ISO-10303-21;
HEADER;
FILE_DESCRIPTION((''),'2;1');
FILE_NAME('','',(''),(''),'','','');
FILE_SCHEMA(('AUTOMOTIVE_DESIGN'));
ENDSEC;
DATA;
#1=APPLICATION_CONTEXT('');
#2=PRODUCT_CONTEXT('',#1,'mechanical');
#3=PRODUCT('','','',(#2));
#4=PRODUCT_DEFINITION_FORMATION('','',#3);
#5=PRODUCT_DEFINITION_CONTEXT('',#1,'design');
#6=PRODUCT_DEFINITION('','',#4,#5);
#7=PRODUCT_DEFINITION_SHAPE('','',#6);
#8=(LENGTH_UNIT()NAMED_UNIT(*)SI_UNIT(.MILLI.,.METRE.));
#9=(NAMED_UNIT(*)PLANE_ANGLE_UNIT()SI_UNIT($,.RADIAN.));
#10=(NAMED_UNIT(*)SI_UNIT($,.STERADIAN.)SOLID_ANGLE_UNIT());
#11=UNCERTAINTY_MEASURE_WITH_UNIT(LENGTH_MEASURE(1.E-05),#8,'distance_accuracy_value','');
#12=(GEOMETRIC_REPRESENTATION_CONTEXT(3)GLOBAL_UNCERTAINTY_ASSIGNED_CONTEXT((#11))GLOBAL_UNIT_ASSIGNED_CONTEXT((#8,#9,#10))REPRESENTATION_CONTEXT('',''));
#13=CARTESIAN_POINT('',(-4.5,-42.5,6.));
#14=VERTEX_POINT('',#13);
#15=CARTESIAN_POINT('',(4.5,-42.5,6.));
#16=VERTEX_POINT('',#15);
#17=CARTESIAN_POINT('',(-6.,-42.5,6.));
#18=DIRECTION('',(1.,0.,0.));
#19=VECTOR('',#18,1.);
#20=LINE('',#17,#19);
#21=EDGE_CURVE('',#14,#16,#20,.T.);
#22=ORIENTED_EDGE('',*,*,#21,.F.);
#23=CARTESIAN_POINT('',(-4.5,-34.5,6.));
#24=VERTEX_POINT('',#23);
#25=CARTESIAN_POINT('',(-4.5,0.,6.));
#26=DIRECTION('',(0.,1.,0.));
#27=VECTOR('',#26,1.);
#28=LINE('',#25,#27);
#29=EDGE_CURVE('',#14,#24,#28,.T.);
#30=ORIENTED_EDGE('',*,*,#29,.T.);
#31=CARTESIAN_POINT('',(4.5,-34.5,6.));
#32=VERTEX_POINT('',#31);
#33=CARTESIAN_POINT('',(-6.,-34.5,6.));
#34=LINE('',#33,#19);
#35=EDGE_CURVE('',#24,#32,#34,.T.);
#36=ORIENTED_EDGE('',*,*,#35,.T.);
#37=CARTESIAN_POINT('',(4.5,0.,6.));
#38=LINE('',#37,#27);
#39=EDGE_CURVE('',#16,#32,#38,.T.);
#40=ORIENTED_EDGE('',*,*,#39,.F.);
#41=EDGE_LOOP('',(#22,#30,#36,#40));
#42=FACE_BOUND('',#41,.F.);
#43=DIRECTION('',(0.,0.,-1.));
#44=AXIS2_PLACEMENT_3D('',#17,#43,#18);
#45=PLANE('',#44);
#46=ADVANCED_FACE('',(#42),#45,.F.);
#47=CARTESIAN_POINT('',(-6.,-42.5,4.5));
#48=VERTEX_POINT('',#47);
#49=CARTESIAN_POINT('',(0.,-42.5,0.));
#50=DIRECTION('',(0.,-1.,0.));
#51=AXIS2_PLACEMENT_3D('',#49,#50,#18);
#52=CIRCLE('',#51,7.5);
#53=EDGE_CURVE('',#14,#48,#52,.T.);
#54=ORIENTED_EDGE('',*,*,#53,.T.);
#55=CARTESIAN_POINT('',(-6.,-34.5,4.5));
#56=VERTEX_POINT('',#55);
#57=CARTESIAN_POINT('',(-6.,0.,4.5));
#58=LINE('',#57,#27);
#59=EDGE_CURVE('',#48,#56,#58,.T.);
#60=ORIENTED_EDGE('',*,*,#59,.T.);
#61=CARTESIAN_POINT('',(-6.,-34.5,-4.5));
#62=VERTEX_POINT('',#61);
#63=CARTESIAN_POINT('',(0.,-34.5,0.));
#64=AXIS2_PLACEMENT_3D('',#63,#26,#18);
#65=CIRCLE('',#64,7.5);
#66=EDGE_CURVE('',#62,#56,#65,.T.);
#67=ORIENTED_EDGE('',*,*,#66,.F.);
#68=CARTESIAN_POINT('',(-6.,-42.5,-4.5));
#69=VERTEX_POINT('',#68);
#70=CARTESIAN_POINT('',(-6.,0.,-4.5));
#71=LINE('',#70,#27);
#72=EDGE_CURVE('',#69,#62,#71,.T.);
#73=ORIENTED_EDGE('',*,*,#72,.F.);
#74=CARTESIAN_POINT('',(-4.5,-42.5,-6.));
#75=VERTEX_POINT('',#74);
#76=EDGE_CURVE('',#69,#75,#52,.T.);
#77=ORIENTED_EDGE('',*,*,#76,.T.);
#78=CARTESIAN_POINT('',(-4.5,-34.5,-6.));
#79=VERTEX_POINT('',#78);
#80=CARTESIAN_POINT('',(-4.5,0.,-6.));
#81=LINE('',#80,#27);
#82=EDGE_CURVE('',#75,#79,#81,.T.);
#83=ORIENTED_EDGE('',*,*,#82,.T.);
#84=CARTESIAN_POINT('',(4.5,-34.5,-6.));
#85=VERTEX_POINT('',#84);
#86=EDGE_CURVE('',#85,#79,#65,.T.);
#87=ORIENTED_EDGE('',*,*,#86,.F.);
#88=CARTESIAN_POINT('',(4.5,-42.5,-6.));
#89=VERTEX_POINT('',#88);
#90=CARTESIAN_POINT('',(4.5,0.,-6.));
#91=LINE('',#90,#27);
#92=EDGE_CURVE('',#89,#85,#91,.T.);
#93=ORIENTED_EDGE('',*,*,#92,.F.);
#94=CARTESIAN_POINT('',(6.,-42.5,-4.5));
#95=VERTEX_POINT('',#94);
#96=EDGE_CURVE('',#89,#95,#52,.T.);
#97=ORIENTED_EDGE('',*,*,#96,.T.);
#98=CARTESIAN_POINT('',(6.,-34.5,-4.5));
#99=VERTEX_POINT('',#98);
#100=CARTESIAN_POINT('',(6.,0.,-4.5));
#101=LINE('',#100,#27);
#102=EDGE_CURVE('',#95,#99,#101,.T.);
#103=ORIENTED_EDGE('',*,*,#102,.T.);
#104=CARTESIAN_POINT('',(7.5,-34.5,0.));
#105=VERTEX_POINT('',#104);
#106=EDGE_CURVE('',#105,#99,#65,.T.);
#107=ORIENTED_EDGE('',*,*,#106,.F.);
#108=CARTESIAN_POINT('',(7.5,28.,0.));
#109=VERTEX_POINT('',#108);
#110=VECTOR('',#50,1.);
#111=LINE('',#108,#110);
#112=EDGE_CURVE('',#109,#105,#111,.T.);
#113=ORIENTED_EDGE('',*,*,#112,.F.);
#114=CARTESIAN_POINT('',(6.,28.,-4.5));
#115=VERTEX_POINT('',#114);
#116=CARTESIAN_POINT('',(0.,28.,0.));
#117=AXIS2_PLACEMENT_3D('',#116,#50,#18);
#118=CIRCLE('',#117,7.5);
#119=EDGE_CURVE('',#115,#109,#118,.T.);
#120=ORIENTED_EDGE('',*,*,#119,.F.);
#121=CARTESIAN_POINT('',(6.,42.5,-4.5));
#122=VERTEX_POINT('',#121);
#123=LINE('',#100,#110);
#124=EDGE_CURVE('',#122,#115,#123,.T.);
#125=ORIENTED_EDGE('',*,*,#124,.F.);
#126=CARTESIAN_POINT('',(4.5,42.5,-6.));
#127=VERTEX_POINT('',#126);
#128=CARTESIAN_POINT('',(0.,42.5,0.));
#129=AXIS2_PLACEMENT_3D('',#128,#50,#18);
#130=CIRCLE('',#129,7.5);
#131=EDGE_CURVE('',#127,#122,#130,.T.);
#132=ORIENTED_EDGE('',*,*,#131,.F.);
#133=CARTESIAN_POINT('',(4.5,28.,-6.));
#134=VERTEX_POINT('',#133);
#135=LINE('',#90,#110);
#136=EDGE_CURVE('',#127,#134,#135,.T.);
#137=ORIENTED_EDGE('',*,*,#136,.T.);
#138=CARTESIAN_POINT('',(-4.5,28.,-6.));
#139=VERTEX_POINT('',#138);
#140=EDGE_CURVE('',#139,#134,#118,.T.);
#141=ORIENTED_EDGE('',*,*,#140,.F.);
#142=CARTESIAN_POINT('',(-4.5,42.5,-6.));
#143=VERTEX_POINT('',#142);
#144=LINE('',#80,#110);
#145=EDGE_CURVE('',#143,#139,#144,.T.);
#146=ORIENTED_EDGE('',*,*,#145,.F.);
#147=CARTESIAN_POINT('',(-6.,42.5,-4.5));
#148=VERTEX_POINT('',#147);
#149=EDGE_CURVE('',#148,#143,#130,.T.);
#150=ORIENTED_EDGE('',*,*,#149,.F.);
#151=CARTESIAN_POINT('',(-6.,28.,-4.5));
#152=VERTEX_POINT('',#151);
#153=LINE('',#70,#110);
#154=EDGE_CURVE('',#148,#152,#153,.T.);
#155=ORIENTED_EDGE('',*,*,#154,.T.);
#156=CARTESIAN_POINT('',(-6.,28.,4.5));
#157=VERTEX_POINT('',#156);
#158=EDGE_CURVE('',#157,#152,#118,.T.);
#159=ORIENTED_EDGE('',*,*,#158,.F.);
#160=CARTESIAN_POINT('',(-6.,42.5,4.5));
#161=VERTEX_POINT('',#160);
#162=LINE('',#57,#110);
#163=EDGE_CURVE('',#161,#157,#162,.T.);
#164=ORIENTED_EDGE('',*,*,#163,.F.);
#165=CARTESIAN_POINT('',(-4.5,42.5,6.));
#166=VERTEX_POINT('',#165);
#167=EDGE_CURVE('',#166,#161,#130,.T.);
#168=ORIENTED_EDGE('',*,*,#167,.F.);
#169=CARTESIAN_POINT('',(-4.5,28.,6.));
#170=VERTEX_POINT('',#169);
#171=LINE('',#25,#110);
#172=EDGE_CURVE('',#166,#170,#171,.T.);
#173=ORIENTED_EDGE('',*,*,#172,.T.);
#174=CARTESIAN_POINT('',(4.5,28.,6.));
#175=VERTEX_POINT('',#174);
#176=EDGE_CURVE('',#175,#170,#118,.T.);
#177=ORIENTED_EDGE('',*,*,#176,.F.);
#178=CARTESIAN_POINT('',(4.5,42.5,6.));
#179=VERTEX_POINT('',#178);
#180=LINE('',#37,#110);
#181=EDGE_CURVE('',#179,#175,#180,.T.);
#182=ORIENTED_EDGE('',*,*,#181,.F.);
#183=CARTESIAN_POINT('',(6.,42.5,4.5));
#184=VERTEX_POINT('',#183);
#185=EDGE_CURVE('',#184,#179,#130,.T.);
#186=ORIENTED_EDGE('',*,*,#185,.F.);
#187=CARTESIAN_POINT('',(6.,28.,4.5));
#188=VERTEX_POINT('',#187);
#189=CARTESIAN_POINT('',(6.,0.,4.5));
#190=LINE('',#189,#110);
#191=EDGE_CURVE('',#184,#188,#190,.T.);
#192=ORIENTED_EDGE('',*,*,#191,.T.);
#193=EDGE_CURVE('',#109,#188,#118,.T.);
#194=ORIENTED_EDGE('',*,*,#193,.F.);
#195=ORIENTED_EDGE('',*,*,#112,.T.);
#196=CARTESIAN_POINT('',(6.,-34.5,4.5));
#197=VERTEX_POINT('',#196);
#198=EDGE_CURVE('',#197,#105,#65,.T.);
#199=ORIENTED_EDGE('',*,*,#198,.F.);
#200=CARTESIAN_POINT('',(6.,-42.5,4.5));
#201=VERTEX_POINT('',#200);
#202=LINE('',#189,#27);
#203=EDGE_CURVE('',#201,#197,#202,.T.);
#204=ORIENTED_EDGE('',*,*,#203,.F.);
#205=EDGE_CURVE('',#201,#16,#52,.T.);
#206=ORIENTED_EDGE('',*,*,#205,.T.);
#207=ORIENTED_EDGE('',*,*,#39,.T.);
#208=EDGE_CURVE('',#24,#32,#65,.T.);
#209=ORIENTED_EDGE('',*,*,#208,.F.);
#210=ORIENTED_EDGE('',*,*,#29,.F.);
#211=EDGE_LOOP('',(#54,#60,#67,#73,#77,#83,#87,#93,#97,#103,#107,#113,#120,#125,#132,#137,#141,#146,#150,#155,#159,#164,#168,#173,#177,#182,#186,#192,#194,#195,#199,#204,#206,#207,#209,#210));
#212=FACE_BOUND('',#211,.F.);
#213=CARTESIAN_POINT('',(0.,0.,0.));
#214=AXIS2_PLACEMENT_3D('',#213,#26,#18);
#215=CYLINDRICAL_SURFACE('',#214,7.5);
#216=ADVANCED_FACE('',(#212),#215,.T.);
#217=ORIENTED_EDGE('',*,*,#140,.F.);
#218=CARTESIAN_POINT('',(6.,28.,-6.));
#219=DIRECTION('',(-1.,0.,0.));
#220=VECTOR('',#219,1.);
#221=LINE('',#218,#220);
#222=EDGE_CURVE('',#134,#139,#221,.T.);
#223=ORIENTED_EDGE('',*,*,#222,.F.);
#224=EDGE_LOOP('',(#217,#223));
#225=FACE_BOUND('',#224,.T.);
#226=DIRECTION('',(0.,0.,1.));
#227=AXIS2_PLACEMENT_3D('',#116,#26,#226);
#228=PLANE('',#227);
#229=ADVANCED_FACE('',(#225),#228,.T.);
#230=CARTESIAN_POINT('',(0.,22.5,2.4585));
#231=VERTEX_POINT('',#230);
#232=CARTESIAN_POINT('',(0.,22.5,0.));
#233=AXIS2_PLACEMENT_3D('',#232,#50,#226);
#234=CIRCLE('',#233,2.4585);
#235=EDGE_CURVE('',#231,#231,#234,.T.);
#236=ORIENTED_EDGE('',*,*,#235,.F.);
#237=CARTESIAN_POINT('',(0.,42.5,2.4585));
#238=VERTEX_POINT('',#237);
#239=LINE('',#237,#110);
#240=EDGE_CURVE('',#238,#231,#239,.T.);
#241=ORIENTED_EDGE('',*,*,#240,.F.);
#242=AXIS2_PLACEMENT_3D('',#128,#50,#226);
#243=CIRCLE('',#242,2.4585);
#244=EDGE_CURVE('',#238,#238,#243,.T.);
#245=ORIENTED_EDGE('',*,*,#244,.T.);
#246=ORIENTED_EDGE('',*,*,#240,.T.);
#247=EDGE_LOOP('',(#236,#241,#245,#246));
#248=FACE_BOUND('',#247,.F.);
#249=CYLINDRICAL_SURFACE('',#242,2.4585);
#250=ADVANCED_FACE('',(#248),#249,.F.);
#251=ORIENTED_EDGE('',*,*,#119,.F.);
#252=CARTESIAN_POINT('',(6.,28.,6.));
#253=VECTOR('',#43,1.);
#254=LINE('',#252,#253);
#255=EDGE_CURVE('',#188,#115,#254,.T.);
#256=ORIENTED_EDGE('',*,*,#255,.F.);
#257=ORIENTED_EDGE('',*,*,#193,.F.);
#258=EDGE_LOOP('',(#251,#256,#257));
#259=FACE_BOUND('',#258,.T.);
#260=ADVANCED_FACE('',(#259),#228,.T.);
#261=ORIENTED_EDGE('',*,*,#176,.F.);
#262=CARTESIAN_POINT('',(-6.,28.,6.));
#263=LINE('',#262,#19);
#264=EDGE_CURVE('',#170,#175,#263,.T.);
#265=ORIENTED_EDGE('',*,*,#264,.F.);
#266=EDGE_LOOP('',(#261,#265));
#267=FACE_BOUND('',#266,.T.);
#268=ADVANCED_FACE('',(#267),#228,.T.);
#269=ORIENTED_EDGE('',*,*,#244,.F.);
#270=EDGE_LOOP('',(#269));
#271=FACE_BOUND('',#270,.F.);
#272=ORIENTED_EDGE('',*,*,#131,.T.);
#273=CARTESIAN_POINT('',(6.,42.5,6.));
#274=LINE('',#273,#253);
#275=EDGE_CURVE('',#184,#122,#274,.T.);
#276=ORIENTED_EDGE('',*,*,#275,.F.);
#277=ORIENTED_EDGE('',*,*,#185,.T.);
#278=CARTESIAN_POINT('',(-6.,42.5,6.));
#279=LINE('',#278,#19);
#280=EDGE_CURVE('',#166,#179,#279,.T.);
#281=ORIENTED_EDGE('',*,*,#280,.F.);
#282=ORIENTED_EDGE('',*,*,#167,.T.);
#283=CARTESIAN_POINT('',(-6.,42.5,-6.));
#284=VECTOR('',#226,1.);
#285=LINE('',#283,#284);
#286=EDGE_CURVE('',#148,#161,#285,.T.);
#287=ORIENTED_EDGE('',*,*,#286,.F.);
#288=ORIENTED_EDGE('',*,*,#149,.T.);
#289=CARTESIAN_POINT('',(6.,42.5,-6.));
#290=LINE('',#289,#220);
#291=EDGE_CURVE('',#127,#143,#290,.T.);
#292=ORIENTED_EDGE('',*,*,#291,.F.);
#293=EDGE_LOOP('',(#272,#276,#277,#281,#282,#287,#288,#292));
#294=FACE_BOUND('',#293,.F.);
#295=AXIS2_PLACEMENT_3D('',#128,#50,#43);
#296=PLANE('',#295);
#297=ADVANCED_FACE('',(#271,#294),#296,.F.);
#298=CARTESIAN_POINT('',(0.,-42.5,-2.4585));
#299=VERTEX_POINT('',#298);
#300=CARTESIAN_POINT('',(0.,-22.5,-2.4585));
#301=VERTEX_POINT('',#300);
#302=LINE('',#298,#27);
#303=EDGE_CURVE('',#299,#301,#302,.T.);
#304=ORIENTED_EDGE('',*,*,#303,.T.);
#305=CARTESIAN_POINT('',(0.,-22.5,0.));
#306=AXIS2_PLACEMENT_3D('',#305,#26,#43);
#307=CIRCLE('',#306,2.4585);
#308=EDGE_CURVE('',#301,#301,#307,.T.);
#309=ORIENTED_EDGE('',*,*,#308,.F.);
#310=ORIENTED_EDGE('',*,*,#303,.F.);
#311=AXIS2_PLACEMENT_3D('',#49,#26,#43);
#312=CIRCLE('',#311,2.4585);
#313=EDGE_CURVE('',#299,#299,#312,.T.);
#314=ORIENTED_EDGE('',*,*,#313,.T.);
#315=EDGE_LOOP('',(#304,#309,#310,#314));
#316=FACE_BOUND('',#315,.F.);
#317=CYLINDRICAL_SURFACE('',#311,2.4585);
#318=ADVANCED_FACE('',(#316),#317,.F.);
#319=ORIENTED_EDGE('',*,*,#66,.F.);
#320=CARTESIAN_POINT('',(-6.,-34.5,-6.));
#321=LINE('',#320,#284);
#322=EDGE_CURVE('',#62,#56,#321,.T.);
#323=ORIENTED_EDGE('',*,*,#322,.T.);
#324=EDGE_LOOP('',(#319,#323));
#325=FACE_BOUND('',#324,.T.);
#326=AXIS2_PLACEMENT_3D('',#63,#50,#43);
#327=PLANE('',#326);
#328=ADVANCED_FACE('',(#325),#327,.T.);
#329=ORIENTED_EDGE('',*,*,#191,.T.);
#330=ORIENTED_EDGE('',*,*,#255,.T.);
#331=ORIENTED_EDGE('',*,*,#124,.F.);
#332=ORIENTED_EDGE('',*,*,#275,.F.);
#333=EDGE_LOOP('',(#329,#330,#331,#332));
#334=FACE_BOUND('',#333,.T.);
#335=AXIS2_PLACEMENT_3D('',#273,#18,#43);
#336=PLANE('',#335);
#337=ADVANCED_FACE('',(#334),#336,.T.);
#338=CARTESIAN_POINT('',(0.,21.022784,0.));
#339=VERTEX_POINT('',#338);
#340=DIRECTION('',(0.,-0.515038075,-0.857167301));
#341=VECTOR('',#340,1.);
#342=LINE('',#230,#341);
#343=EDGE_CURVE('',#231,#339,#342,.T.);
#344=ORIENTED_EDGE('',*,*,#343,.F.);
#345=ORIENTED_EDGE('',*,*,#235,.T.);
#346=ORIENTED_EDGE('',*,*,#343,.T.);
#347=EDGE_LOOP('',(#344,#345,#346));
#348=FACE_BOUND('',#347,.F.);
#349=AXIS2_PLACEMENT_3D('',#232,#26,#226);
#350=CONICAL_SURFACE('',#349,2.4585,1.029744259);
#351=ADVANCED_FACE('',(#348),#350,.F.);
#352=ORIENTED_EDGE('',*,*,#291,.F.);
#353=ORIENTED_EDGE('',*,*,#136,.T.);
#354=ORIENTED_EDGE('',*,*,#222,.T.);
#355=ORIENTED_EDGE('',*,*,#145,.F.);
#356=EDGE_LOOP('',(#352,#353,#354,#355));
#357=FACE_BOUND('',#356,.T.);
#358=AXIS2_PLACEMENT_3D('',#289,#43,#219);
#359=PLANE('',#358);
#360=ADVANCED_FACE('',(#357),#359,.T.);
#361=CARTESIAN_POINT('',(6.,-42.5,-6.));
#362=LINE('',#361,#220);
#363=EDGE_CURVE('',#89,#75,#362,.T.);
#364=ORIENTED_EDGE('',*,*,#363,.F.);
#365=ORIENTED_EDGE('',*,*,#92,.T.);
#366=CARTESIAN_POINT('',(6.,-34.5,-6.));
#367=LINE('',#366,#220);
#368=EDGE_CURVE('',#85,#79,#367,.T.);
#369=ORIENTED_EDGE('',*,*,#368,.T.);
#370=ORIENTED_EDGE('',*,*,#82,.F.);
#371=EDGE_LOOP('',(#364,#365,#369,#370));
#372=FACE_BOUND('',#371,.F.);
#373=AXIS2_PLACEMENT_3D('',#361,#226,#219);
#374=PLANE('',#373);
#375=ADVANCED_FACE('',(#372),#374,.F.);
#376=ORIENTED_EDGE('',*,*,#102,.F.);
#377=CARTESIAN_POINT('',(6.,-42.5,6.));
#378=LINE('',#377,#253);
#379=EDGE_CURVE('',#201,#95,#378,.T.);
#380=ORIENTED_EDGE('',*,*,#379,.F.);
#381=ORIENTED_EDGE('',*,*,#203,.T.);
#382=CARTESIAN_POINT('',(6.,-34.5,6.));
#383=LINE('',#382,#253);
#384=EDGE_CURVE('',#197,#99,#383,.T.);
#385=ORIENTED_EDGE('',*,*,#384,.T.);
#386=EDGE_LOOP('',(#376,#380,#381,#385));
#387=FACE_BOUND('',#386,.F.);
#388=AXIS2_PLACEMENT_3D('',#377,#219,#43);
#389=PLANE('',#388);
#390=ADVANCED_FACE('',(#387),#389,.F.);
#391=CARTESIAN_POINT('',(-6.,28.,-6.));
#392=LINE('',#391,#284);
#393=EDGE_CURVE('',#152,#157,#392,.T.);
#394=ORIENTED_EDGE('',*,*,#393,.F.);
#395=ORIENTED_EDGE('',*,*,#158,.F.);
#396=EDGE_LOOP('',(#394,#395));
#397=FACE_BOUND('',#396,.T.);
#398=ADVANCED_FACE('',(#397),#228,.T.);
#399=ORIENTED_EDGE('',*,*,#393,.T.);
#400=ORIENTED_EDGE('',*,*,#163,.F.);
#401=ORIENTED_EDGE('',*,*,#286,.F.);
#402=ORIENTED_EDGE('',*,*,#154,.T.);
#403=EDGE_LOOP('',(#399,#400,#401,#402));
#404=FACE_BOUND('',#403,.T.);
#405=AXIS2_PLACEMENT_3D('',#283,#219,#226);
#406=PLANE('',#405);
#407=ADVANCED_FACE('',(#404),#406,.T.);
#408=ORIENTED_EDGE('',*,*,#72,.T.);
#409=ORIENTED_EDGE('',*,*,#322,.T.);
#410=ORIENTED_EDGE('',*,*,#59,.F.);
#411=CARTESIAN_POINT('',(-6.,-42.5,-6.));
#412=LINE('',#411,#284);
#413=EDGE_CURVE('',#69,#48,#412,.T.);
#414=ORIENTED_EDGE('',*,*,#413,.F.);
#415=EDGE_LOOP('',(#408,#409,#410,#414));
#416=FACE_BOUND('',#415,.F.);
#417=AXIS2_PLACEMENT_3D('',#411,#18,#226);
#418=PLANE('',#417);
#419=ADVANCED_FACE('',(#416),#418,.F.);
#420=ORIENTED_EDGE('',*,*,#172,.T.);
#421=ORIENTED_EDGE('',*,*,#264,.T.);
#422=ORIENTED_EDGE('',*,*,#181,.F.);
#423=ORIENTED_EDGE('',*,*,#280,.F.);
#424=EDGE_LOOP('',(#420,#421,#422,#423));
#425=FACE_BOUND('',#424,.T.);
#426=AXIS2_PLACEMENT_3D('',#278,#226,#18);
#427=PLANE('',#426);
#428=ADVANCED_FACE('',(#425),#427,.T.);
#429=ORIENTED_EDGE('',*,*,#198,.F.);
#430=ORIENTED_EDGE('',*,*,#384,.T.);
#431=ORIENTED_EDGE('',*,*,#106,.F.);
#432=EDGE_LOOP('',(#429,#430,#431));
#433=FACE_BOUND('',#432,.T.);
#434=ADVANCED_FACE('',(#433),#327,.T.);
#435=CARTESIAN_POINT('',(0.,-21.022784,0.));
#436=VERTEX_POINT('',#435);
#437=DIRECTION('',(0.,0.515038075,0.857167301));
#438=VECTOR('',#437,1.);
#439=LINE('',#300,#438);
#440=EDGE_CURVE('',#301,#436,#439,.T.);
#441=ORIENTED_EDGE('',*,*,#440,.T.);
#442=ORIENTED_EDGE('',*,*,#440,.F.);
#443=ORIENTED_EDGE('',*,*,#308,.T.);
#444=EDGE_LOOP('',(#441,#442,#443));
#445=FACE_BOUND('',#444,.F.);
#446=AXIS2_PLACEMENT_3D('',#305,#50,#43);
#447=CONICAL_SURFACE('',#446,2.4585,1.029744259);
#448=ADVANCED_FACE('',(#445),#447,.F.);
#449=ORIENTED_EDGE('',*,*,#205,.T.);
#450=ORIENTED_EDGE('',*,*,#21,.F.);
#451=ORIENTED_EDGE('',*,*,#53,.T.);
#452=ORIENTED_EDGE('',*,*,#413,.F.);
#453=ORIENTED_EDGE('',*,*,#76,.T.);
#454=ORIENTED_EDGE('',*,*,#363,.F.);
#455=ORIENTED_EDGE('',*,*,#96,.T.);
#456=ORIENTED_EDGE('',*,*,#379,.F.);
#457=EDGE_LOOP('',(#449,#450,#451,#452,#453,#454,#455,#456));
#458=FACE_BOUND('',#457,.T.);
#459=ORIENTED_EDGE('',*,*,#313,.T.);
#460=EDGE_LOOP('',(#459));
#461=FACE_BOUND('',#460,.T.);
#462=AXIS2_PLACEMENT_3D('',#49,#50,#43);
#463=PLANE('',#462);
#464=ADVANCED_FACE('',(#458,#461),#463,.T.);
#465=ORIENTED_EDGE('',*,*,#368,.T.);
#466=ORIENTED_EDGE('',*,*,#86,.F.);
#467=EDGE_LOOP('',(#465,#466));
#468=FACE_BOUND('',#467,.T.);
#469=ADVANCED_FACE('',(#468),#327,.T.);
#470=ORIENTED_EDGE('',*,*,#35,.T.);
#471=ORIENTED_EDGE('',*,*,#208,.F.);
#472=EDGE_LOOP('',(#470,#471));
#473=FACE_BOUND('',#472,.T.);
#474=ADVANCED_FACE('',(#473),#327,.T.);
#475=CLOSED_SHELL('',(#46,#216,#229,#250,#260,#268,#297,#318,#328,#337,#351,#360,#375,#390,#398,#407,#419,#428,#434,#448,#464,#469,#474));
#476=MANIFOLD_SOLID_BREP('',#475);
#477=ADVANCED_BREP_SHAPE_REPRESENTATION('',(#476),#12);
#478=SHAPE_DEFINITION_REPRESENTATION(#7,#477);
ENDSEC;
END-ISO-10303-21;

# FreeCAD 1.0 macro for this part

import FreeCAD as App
import Part
import Sketcher

V = App.Vector


def add_polygon(sketch, points):
    """Adds a closed chain of lines whose ends are joined by coincident constraints."""
    first, n = sketch.GeometryCount, len(points)
    for a, b in zip(points, points[1:] + points[:1]):
        sketch.addGeometry(Part.LineSegment(App.Vector(*a, 0), App.Vector(*b, 0)), False)
    for i in range(n):
        sketch.addConstraint(Sketcher.Constraint("Coincident", first + i, 2, first + (i + 1) % n, 1))

doc = App.newDocument("Part")
body = doc.addObject("PartDesign::Body", "Body")

# Sketch on XZ plane
sketch1 = body.newObject("Sketcher::SketchObject", "Sketch")
sketch1.AttachmentSupport = (doc.getObject("XZ_Plane"), [""])
sketch1.MapMode = "FlatFace"
sketch1.addGeometry(Part.Circle(V(0, 0, 0), V(0, 0, 1), 8), False)
sketch1.addConstraint(Sketcher.Constraint("Coincident", 0, 3, -1, 1))
sketch1.addConstraint(Sketcher.Constraint("Diameter", 0, 15.0))
pad1 = body.newObject("PartDesign::Pad", "Pad")
pad1.Profile = sketch1
pad1.Length = 85
pad1.Midplane = True

# Sketch on XZ plane
sketch2 = body.newObject("Sketcher::SketchObject", "Sketch001")
sketch2.AttachmentSupport = (doc.getObject("XZ_Plane"), [""])
sketch2.MapMode = "FlatFace"
sketch2.AttachmentOffset = App.Placement(V(0, 0, -42.5), App.Rotation())
sketch2.addGeometry(Part.Circle(V(0, 0, 0), V(0, 0, 1), 13), False)  # 0
add_polygon(sketch2, [(-6, -6), (6, -6), (6, 6), (-6, 6)])  # lines 1-4
sketch2.addConstraint(Sketcher.Constraint("Horizontal", 1))
sketch2.addConstraint(Sketcher.Constraint("Vertical", 2))
sketch2.addConstraint(Sketcher.Constraint("Horizontal", 3))
sketch2.addConstraint(Sketcher.Constraint("Vertical", 4))
sketch2.addConstraint(Sketcher.Constraint("Coincident", 0, 3, -1, 1))
sketch2.addConstraint(Sketcher.Constraint("Symmetric", 1, 2, 3, 2, -1, 1))
sketch2.addConstraint(Sketcher.Constraint("Equal", 3, 2))
sketch2.addConstraint(Sketcher.Constraint("DistanceX", -1, 1, 1, 2, 6.0))
sketch2.addConstraint(Sketcher.Constraint("Diameter", 0, 26.0266))
pocket1 = body.newObject("PartDesign::Pocket", "Pocket")
pocket1.Profile = sketch2
pocket1.Length = 14.5
pocket1.Reversed = True

# Sketch on XZ plane
sketch3 = body.newObject("Sketcher::SketchObject", "Sketch002")
sketch3.AttachmentSupport = (doc.getObject("XZ_Plane"), [""])
sketch3.MapMode = "FlatFace"
sketch3.AttachmentOffset = App.Placement(V(0, 0, 42.5), App.Rotation())
sketch3.addGeometry(Part.Circle(V(0, 0, 0), V(0, 0, 1), 12), False)  # 0
add_polygon(sketch3, [(-6, -6), (-6, 6), (6, 6), (6, -6)])  # lines 1-4
sketch3.addConstraint(Sketcher.Constraint("Vertical", 1))
sketch3.addConstraint(Sketcher.Constraint("Horizontal", 2))
sketch3.addConstraint(Sketcher.Constraint("Vertical", 3))
sketch3.addConstraint(Sketcher.Constraint("Horizontal", 4))
sketch3.addConstraint(Sketcher.Constraint("Coincident", 0, 3, -1, 1))
sketch3.addConstraint(Sketcher.Constraint("Symmetric", 1, 2, 3, 2, -1, 1))
sketch3.addConstraint(Sketcher.Constraint("Equal", 4, 1))
sketch3.addConstraint(Sketcher.Constraint("DistanceX", 1, 2, -1, 1, 6.0))
sketch3.addConstraint(Sketcher.Constraint("Diameter", 0, 23.6774))
pocket2 = body.newObject("PartDesign::Pocket", "Pocket001")
pocket2.Profile = sketch3
pocket2.Length = 8

# Sketch on XZ plane
sketch4 = body.newObject("Sketcher::SketchObject", "Sketch003")
sketch4.AttachmentSupport = (doc.getObject("XZ_Plane"), [""])
sketch4.MapMode = "FlatFace"
sketch4.AttachmentOffset = App.Placement(V(0, 0, -42.5), App.Rotation())
sketch4.addGeometry(Part.Circle(V(0, 0, 0), V(0, 0, 1), 2.5), False)
sketch4.addConstraint(Sketcher.Constraint("Coincident", 0, 3, -1, 1))
sketch4.addConstraint(Sketcher.Constraint("Diameter", 0, 4.917))
doc.recompute()
hole = body.newObject("PartDesign::Hole", "Hole")
hole.Profile = sketch4
hole.ThreadType = "None"
hole.Diameter = 4.917
hole.DepthType = "Dimension"
hole.Depth = 20
hole.DrillPoint = "Angled"
hole.DrillPointAngle = 118
hole.Reversed = True

# Sketch on XZ plane
sketch5 = body.newObject("Sketcher::SketchObject", "Sketch004")
sketch5.AttachmentSupport = (doc.getObject("XZ_Plane"), [""])
sketch5.MapMode = "FlatFace"
sketch5.AttachmentOffset = App.Placement(V(0, 0, 42.5), App.Rotation())
sketch5.addGeometry(Part.Circle(V(0, 0, 0), V(0, 0, 1), 2.5), False)
sketch5.addConstraint(Sketcher.Constraint("Coincident", 0, 3, -1, 1))
sketch5.addConstraint(Sketcher.Constraint("Diameter", 0, 4.917))
doc.recompute()
hole2 = body.newObject("PartDesign::Hole", "Hole001")
hole2.Profile = sketch5
hole2.ThreadType = "None"
hole2.Diameter = 4.917
hole2.DepthType = "Dimension"
hole2.Depth = 20
hole2.DrillPoint = "Angled"
hole2.DrillPointAngle = 118

doc.recompute()
